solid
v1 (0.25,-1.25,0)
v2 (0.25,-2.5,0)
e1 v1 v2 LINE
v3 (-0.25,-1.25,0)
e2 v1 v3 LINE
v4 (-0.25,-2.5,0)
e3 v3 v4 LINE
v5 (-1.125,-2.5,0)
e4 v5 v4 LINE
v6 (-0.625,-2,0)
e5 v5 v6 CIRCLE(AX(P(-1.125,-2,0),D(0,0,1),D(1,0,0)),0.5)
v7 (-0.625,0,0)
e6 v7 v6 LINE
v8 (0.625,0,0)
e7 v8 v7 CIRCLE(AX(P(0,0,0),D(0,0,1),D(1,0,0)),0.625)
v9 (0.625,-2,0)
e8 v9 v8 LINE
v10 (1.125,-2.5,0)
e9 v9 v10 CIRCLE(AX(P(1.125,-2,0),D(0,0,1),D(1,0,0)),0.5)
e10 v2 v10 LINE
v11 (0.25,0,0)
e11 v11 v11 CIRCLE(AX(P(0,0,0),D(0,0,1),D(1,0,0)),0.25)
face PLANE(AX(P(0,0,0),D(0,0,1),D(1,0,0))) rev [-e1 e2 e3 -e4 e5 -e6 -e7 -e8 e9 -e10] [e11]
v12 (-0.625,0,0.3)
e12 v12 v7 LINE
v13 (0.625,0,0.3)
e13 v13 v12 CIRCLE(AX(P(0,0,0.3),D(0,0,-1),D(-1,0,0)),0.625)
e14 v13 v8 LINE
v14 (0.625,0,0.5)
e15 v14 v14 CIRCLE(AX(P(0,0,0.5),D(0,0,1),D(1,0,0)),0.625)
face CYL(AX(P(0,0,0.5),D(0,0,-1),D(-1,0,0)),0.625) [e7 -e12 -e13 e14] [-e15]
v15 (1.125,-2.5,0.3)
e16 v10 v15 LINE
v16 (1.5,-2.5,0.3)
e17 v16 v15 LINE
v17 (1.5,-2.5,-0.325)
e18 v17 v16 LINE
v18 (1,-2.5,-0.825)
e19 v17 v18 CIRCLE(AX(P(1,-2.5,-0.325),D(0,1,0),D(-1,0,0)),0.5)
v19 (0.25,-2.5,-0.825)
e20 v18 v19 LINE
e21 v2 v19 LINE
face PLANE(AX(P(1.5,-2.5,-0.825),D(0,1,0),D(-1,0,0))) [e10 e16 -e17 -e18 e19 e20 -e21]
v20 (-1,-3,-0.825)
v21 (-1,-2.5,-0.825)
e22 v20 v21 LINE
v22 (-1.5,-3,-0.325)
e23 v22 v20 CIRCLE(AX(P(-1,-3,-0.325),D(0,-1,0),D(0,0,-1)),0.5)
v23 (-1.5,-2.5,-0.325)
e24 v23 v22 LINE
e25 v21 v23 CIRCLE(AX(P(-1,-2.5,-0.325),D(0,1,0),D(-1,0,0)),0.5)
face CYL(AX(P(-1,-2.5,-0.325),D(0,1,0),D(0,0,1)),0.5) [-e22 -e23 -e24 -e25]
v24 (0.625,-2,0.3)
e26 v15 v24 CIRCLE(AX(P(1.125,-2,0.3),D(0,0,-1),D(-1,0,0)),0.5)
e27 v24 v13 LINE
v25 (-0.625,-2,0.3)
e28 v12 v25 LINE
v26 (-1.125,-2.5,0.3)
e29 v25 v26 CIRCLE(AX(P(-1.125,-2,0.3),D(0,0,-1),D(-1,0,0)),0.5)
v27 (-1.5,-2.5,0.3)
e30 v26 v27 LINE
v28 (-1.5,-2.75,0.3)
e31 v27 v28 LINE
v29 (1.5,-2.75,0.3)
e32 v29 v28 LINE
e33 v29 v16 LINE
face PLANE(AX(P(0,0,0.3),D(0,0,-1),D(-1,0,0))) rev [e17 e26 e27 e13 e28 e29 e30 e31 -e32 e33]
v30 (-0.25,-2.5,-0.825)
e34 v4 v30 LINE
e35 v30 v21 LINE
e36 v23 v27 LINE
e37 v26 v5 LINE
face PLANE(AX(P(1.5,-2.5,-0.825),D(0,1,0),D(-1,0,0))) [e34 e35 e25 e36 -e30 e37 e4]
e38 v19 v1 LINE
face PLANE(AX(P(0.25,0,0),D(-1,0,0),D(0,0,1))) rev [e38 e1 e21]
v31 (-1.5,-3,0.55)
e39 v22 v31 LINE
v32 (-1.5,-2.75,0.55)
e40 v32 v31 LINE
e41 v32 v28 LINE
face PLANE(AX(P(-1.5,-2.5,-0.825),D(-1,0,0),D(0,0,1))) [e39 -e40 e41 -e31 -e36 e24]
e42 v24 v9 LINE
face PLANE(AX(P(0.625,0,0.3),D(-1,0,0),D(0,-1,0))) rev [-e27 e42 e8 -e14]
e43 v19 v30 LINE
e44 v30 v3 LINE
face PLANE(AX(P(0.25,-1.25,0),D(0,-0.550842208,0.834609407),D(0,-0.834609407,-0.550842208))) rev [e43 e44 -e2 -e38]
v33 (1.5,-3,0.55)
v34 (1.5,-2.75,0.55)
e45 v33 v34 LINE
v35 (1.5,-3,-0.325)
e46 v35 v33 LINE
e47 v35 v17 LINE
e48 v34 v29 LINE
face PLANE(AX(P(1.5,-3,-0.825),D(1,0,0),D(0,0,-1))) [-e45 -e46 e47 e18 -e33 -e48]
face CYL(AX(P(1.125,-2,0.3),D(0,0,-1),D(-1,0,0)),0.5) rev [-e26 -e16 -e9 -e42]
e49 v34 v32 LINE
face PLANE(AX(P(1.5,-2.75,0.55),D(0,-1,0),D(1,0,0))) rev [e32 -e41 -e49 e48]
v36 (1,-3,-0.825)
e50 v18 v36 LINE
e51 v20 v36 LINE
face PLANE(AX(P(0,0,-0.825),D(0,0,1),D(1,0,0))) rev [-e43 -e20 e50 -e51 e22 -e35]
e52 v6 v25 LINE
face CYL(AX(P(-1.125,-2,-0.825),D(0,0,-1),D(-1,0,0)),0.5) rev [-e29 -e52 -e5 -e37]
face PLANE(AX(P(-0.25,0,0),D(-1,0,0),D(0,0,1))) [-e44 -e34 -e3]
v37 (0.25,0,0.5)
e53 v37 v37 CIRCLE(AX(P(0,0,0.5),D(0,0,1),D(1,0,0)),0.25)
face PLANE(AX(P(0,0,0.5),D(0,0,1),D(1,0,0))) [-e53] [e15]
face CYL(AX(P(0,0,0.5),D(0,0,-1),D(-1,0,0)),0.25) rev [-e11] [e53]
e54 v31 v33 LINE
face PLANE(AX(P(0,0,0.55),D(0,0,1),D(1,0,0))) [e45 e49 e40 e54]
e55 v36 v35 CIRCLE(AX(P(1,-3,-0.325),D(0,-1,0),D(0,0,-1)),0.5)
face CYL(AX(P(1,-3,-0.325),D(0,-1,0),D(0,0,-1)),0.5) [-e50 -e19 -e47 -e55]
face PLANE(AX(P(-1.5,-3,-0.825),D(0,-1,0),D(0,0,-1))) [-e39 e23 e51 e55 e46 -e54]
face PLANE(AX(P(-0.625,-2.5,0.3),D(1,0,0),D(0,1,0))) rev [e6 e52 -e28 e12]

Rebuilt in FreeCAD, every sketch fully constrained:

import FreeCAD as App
import Part
import Sketcher
from FreeCAD import Vector
Q = App.Units.Quantity


def edges_at(feature, points):
    """Names of the edges that pass closest to the given points."""
    edges = feature.Shape.Edges
    near = lambda p: min(range(len(edges)), key=lambda i: edges[i].distToShape(Part.Vertex(*p))[0])
    return sorted({f"Edge{near(p) + 1}" for p in points})


def add_polygon(sketch, points):
    """Adds a closed chain of lines whose ends are joined by coincident constraints."""
    first, n = sketch.GeometryCount, len(points)
    for a, b in zip(points, points[1:] + points[:1]):
        sketch.addGeometry(Part.LineSegment(App.Vector(*a, 0), App.Vector(*b, 0)), False)
    for i in range(n):
        sketch.addConstraint(Sketcher.Constraint("Coincident", first + i, 2, first + (i + 1) % n, 1))

doc = App.newDocument("Part")
params = doc.addObject("Spreadsheet::Sheet", "Params")
for row, (alias, value) in enumerate([
    ("sketch1_diameter", "0.5 mm"),
    ("sketch1_diameter2", "1.25 mm"),
    ("pad1_length", "0.5 mm"),
    ("sketch2_height", "2.5 mm"),
    ("sketch2_width", "1.25 mm"),
    ("pad2_length", "0.3 mm"),
    ("sketch3_width", "3 mm"),
    ("sketch3_height", "0.5 mm"),
    ("pad3_length", "1.125 mm"),
    ("sketch4_width", "3 mm"),
    ("sketch4_height", "0.25 mm"),
    ("pad4_length", "0.25 mm"),
    ("sketch5_diameter", "0.5 mm"),
    ("pocket1_length", "0.3 mm"),
    ("fillet_radius", "0.5 mm"),
    ("sketch6_width", "1.25 mm"),
    ("pad5_length", "0.5 mm"),
    ("fillet2_radius", "0.5 mm"),
], start=1):
    params.set(f"A{row}", alias)
    params.set(f"B{row}", "=" + value)
    params.setAlias(f"B{row}", alias)

body = doc.addObject("PartDesign::Body", "Body")

# Sketch on XY plane
sketch1 = body.newObject("Sketcher::SketchObject", "Sketch")
sketch1.AttachmentSupport = (doc.getObject("XY_Plane"), [""])
sketch1.MapMode = "FlatFace"
sketch1.addGeometry(Part.Circle(Vector(0, 0, 0), Vector(0, 0, 1), 0.625), False)
sketch1.addGeometry(Part.Circle(Vector(0, 0, 0), Vector(0, 0, 1), 0.25), False)
sketch1.addConstraint(Sketcher.Constraint("Coincident", 0, 3, -1, 1))
sketch1.addConstraint(Sketcher.Constraint("Coincident", 1, 3, -1, 1))
sketch1.addConstraint(Sketcher.Constraint("Diameter", 1, Q("0.5 mm")))
sketch1.addConstraint(Sketcher.Constraint("Diameter", 0, Q("1.25 mm")))
sketch1.setExpression("Constraints[2]", "Params.sketch1_diameter")
sketch1.setExpression("Constraints[3]", "Params.sketch1_diameter2")
pad1 = body.newObject("PartDesign::Pad", "Pad")
pad1.Profile = sketch1
pad1.setExpression("Length", "Params.pad1_length")

# Sketch on XY plane
sketch2 = body.newObject("Sketcher::SketchObject", "Sketch001")
sketch2.AttachmentSupport = (doc.getObject("XY_Plane"), [""])
sketch2.MapMode = "FlatFace"
add_polygon(sketch2, [(-0.625, 0), (-0.625, -2.5), (0.625, -2.5), (0.625, 0)])  # lines 0-3
sketch2.addConstraint(Sketcher.Constraint("Vertical", 0))
sketch2.addConstraint(Sketcher.Constraint("Horizontal", 1))
sketch2.addConstraint(Sketcher.Constraint("Vertical", 2))
sketch2.addConstraint(Sketcher.Constraint("Horizontal", 3))
sketch2.addConstraint(Sketcher.Constraint("Symmetric", 2, 2, 3, 2, -1, 1))
sketch2.addConstraint(Sketcher.Constraint("DistanceY", 0, 2, 0, 1, Q("2.5 mm")))
sketch2.addConstraint(Sketcher.Constraint("DistanceX", 1, 1, 1, 2, Q("1.25 mm")))
sketch2.setExpression("Constraints[9]", "Params.sketch2_height")
sketch2.setExpression("Constraints[10]", "Params.sketch2_width")
pad2 = body.newObject("PartDesign::Pad", "Pad001")
pad2.Profile = sketch2
pad2.setExpression("Length", "Params.pad2_length")

# Sketch on XY plane
sketch3 = body.newObject("Sketcher::SketchObject", "Sketch002")
sketch3.AttachmentSupport = (doc.getObject("XY_Plane"), [""])
sketch3.MapMode = "FlatFace"
sketch3.AttachmentOffset = App.Placement(Vector(0, 0, 0.3), App.Rotation())
add_polygon(sketch3, [(-1.5, -2.5), (-1.5, -3), (1.5, -3), (1.5, -2.5)])  # lines 0-3
sketch3.addConstraint(Sketcher.Constraint("Vertical", 0))
sketch3.addConstraint(Sketcher.Constraint("Horizontal", 1))
sketch3.addConstraint(Sketcher.Constraint("Vertical", 2))
sketch3.addConstraint(Sketcher.Constraint("Horizontal", 3))
sketch3.addConstraint(Sketcher.Constraint("DistanceX", 1, 1, 1, 2, Q("3 mm")))
sketch3.addConstraint(Sketcher.Constraint("DistanceY", 0, 2, 0, 1, Q("0.5 mm")))
sketch3.addConstraint(Sketcher.Constraint("DistanceY", 0, 2, -1, 1, Q("3 mm")))
sketch3.addConstraint(Sketcher.Constraint("DistanceX", 0, 2, -1, 1, Q("1.5 mm")))
sketch3.setExpression("Constraints[8]", "Params.sketch3_width")
sketch3.setExpression("Constraints[9]", "Params.sketch3_height")
pad3 = body.newObject("PartDesign::Pad", "Pad002")
pad3.Profile = sketch3
pad3.setExpression("Length", "Params.pad3_length")
pad3.Reversed = True

# Sketch on XY plane
sketch4 = body.newObject("Sketcher::SketchObject", "Sketch003")
sketch4.AttachmentSupport = (doc.getObject("XY_Plane"), [""])
sketch4.MapMode = "FlatFace"
sketch4.AttachmentOffset = App.Placement(Vector(0, 0, 0.3), App.Rotation())
add_polygon(sketch4, [(-1.5, -2.75), (-1.5, -3), (1.5, -3), (1.5, -2.75)])  # lines 0-3
sketch4.addConstraint(Sketcher.Constraint("Vertical", 0))
sketch4.addConstraint(Sketcher.Constraint("Horizontal", 1))
sketch4.addConstraint(Sketcher.Constraint("Vertical", 2))
sketch4.addConstraint(Sketcher.Constraint("Horizontal", 3))
sketch4.addConstraint(Sketcher.Constraint("DistanceX", 1, 1, 1, 2, Q("3 mm")))
sketch4.addConstraint(Sketcher.Constraint("DistanceY", 0, 2, -1, 1, Q("3 mm")))
sketch4.addConstraint(Sketcher.Constraint("DistanceY", 0, 2, 0, 1, Q("0.25 mm")))
sketch4.addConstraint(Sketcher.Constraint("DistanceX", 0, 2, -1, 1, Q("1.5 mm")))
sketch4.setExpression("Constraints[8]", "Params.sketch4_width")
sketch4.setExpression("Constraints[10]", "Params.sketch4_height")
pad4 = body.newObject("PartDesign::Pad", "Pad003")
pad4.Profile = sketch4
pad4.setExpression("Length", "Params.pad4_length")

# Sketch on XY plane
sketch5 = body.newObject("Sketcher::SketchObject", "Sketch004")
sketch5.AttachmentSupport = (doc.getObject("XY_Plane"), [""])
sketch5.MapMode = "FlatFace"
sketch5.AttachmentOffset = App.Placement(Vector(0, 0, 0.3), App.Rotation())
sketch5.addGeometry(Part.Circle(Vector(0, 0, 0), Vector(0, 0, 1), 0.25), False)
sketch5.addConstraint(Sketcher.Constraint("Coincident", 0, 3, -1, 1))
sketch5.addConstraint(Sketcher.Constraint("Diameter", 0, Q("0.5 mm")))
sketch5.setExpression("Constraints[1]", "Params.sketch5_diameter")
pocket1 = body.newObject("PartDesign::Pocket", "Pocket")
pocket1.Profile = sketch5
pocket1.setExpression("Length", "Params.pocket1_length")
doc.recompute()

fillet = body.newObject("PartDesign::Fillet", "Fillet")
fillet.Base = (pocket1, edges_at(pocket1, [(-0.625, -2.5, 0.15), (0.625, -2.5, 0.15)]))
fillet.setExpression("Radius", "Params.fillet_radius")

# Sketch on YZ plane
sketch6 = body.newObject("Sketcher::SketchObject", "Sketch005")
sketch6.AttachmentSupport = (doc.getObject("YZ_Plane"), [""])
sketch6.MapMode = "FlatFace"
add_polygon(sketch6, [(-1.25, 0), (-2.5, 0), (-2.5, -0.825)])  # lines 0-2
sketch6.addConstraint(Sketcher.Constraint("Horizontal", 0))
sketch6.addConstraint(Sketcher.Constraint("Vertical", 1))
sketch6.addConstraint(Sketcher.Constraint("PointOnObject", 0, 2, -1))
sketch6.addConstraint(Sketcher.Constraint("DistanceX", 0, 2, 0, 1, Q("1.25 mm")))
sketch6.addConstraint(Sketcher.Constraint("DistanceX", 0, 2, -1, 1, Q("2.5 mm")))
sketch6.addConstraint(Sketcher.Constraint("DistanceY", 1, 2, 1, 1, Q("0.825 mm")))
sketch6.setExpression("Constraints[6]", "Params.sketch6_width")
pad5 = body.newObject("PartDesign::Pad", "Pad004")
pad5.Profile = sketch6
pad5.setExpression("Length", "Params.pad5_length")
pad5.Midplane = True
doc.recompute()

fillet2 = body.newObject("PartDesign::Fillet", "Fillet001")
fillet2.Base = (pad5, edges_at(pad5, [(1.5, -2.75, -0.825), (-1.5, -2.75, -0.825)]))
fillet2.setExpression("Radius", "Params.fillet2_radius")

doc.recompute()
